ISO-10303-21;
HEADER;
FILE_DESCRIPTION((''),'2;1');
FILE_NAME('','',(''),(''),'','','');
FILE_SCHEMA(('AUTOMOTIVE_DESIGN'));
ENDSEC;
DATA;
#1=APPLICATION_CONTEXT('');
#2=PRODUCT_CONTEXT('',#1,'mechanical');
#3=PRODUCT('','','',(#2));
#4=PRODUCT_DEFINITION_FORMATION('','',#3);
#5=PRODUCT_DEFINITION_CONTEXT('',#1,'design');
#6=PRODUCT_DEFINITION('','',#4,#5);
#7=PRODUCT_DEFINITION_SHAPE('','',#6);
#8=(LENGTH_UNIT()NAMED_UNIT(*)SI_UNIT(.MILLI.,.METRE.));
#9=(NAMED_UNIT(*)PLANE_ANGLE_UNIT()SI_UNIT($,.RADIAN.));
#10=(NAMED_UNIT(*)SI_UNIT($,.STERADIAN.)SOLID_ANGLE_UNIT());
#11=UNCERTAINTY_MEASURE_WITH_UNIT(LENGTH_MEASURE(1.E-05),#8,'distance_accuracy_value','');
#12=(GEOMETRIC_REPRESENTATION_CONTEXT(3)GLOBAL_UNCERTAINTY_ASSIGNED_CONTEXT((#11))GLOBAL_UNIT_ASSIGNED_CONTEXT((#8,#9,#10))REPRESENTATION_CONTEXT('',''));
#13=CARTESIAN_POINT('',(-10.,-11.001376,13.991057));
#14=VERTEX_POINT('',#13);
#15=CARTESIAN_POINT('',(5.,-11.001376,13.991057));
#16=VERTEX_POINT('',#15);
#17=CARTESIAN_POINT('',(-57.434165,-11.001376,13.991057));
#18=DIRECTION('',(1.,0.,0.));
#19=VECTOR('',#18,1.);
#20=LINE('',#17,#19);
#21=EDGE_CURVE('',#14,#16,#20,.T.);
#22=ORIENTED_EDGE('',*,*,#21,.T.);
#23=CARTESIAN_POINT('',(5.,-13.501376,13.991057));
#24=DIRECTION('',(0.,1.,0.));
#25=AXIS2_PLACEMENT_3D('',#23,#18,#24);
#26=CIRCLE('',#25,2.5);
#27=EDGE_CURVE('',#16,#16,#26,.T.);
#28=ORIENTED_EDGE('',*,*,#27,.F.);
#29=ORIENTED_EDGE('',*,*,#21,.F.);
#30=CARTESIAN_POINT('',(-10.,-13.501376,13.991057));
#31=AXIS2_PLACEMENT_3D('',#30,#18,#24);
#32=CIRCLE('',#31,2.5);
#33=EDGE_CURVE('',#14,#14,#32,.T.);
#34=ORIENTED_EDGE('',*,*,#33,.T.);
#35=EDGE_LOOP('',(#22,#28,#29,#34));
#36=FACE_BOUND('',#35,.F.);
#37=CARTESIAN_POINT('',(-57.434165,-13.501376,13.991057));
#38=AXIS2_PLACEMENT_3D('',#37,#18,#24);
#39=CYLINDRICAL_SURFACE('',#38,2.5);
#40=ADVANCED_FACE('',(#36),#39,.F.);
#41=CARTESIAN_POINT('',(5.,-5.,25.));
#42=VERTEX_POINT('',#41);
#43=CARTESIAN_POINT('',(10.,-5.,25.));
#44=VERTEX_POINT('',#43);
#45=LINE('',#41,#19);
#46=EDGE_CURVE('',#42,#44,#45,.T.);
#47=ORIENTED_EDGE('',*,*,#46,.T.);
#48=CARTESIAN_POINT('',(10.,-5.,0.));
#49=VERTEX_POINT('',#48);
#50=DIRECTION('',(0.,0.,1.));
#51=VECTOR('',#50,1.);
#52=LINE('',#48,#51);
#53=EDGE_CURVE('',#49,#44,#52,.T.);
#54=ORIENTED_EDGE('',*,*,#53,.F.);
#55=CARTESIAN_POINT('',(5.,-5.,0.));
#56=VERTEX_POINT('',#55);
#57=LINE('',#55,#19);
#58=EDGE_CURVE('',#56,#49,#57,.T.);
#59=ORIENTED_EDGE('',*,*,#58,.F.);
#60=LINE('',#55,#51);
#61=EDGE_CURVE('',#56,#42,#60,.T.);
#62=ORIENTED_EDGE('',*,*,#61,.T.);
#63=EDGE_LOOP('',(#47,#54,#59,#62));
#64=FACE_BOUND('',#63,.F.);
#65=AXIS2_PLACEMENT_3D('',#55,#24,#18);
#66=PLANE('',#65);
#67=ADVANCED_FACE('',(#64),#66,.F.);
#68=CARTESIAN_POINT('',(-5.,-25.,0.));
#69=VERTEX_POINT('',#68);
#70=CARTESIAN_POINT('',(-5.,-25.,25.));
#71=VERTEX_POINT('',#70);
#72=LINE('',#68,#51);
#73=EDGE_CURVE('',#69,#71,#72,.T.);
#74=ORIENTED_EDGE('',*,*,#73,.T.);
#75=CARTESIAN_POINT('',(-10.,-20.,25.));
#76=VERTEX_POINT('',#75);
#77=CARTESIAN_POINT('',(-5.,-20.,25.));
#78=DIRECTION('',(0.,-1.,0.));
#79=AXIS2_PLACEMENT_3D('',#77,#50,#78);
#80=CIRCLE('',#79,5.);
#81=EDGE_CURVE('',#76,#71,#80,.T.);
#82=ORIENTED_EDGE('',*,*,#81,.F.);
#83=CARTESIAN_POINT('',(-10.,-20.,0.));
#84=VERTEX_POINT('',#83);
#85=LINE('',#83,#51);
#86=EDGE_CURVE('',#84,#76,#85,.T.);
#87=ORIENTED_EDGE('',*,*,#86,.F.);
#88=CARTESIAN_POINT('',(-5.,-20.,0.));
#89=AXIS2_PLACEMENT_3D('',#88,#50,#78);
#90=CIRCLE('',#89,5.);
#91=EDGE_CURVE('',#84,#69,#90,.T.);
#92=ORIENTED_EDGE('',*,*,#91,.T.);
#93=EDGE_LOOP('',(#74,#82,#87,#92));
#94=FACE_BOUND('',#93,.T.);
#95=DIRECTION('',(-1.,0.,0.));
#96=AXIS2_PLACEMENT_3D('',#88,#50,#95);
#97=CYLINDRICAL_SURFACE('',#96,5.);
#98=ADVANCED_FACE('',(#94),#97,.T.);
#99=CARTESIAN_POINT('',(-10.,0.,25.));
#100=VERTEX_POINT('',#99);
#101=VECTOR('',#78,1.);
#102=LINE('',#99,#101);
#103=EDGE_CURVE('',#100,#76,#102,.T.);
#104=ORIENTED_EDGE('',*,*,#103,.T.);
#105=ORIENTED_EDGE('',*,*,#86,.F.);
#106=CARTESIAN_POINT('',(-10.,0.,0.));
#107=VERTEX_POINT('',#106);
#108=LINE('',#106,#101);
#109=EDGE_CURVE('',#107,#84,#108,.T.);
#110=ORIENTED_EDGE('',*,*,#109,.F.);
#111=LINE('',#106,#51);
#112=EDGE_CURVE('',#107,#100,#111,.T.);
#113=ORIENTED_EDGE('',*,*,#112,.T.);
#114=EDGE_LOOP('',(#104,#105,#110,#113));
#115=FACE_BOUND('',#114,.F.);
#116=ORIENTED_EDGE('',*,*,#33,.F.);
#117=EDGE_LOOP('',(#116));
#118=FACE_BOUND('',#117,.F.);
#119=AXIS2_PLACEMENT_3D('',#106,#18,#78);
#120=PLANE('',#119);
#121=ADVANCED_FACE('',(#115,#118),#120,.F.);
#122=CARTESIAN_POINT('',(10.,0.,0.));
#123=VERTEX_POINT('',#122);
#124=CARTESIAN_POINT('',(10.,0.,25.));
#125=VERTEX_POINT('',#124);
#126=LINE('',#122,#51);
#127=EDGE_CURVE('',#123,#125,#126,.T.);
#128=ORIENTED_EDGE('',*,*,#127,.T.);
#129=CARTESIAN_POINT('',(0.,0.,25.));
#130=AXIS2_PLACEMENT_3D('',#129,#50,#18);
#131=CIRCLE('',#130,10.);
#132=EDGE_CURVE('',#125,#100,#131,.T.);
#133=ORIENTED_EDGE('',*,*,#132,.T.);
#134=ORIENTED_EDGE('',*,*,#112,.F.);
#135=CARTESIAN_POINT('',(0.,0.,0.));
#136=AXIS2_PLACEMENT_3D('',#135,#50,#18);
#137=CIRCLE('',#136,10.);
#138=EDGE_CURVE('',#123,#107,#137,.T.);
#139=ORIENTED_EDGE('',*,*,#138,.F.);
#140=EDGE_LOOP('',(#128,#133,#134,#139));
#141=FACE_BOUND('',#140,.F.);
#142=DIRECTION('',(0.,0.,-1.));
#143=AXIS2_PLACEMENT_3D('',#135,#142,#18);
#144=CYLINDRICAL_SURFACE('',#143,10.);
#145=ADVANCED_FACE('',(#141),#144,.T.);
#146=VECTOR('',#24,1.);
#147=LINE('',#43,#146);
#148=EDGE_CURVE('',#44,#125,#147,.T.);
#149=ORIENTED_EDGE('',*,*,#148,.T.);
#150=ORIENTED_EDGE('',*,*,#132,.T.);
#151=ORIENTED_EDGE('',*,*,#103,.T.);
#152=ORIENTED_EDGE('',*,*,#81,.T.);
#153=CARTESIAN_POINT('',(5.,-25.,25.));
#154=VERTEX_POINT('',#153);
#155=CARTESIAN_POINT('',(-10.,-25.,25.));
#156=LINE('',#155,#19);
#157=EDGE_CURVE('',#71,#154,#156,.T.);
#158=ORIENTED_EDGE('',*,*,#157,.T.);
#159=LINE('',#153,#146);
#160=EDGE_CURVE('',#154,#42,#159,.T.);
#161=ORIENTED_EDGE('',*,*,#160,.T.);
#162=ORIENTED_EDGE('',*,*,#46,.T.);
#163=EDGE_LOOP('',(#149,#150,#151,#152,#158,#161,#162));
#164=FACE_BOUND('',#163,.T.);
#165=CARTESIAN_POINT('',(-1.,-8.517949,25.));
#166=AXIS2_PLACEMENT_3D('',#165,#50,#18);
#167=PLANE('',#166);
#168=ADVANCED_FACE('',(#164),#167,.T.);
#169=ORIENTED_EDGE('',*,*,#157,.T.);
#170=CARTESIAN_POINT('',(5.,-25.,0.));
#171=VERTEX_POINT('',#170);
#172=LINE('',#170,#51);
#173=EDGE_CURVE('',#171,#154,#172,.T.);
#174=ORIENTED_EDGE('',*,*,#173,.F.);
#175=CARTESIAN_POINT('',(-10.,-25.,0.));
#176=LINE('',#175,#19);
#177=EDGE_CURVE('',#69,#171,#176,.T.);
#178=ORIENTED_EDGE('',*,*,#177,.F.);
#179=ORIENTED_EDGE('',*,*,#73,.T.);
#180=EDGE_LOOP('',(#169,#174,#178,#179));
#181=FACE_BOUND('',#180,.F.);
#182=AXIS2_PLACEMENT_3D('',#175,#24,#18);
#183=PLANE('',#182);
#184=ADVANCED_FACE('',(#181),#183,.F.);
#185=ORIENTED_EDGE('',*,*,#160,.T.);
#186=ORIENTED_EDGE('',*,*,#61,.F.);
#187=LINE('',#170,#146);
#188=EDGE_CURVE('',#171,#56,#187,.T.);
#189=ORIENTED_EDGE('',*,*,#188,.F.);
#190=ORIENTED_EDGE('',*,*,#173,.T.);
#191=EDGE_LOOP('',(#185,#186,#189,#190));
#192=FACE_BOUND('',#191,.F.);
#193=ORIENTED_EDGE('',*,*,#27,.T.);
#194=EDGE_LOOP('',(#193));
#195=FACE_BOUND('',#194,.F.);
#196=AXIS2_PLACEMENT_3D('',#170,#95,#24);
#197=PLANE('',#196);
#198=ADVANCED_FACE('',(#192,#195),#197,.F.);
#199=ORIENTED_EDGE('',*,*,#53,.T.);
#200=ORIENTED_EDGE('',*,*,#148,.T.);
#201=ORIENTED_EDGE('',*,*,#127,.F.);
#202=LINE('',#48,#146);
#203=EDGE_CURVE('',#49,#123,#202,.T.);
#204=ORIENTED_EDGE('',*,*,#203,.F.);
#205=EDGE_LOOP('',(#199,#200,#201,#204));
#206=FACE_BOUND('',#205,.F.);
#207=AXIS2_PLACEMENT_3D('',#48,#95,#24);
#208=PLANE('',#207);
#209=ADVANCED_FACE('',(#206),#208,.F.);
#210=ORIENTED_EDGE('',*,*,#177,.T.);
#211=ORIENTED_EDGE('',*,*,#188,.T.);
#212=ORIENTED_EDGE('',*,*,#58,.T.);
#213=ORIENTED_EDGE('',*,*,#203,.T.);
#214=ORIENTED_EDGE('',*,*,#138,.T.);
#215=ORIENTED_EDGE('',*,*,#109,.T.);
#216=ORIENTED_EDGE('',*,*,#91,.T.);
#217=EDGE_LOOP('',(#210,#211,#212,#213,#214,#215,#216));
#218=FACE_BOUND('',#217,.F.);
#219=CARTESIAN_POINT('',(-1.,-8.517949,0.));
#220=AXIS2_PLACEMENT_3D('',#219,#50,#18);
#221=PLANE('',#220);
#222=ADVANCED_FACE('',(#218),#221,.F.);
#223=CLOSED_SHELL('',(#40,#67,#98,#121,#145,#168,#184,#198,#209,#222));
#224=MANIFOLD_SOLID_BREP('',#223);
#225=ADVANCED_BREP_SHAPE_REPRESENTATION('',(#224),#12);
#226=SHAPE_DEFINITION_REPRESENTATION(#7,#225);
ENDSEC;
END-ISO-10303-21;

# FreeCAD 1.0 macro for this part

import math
import FreeCAD as App
import Part
import Sketcher


def edges_at(feature, points):
    """Names of the edges that pass closest to the given points."""
    edges = feature.Shape.Edges
    near = lambda p: min(range(len(edges)), key=lambda i: edges[i].distToShape(Part.Vertex(*p))[0])
    return sorted({f"Edge{near(p) + 1}" for p in points})

doc = App.newDocument("Part")
body = doc.addObject("PartDesign::Body", "Body")

# Sketch on XY plane
sketch1 = body.newObject("Sketcher::SketchObject", "Sketch")
sketch1.AttachmentSupport = (doc.getObject("XY_Plane"), [""])
sketch1.MapMode = "FlatFace"
sketch1.addGeometry([
    Part.LineSegment(App.Vector(10, -5, 0), App.Vector(10, 0, 0)),  # 0
    Part.ArcOfCircle(Part.Circle(App.Vector(0, 0, 0), App.Vector(0, 0, 1), 10), math.radians(0), math.radians(180)),  # 1
    Part.LineSegment(App.Vector(-10, 0, 0), App.Vector(-10, -25, 0)),  # 2
    Part.LineSegment(App.Vector(-10, -25, 0), App.Vector(5, -25, 0)),  # 3
    Part.LineSegment(App.Vector(5, -25, 0), App.Vector(5, -5, 0)),  # 4
    Part.LineSegment(App.Vector(5, -5, 0), App.Vector(10, -5, 0)),  # 5
], False)
sketch1.addConstraint([
    Sketcher.Constraint("Tangent", 0, 2, 1, 1),
    Sketcher.Constraint("Tangent", 1, 2, 2, 1),
    Sketcher.Constraint("Coincident", 2, 2, 3, 1),
    Sketcher.Constraint("Coincident", 3, 2, 4, 1),
    Sketcher.Constraint("Coincident", 4, 2, 5, 1),
    Sketcher.Constraint("Coincident", 5, 2, 0, 1),
    Sketcher.Constraint("Vertical", 0),
    Sketcher.Constraint("Vertical", 2),
    Sketcher.Constraint("Horizontal", 3),
    Sketcher.Constraint("Vertical", 4),
    Sketcher.Constraint("Horizontal", 5),
    Sketcher.Constraint("Coincident", 1, 3, -1, 1),
    Sketcher.Constraint("Equal", 5, 0),
    Sketcher.Constraint("Radius", 1, 10.0),
    Sketcher.Constraint("DistanceX", 3, 1, 3, 2, 15.0),
    Sketcher.Constraint("DistanceY", 2, 2, 2, 1, 25.0),
])
pad1 = body.newObject("PartDesign::Pad", "Pad")
pad1.Profile = sketch1
pad1.Length = 25

# Sketch on YZ plane
sketch2 = body.newObject("Sketcher::SketchObject", "Sketch001")
sketch2.AttachmentSupport = (doc.getObject("YZ_Plane"), [""])
sketch2.MapMode = "FlatFace"
sketch2.AttachmentOffset = App.Placement(App.Vector(0, 0, -10), App.Rotation())
sketch2.addGeometry(Part.Circle(App.Vector(-13.5, 14, 0), App.Vector(0, 0, 1), 2.5), False)
sketch2.addConstraint([
    Sketcher.Constraint("Diameter", 0, 5.0),
    Sketcher.Constraint("DistanceX", 0, 3, -1, 1, 13.501376),
    Sketcher.Constraint("DistanceY", -1, 1, 0, 3, 13.991057),
])
doc.recompute()
hole = body.newObject("PartDesign::Hole", "Hole")
hole.Profile = sketch2
hole.ThreadType = "None"
hole.Diameter = 5
hole.DepthType = "ThroughAll"
hole.Reversed = True
doc.recompute()

fillet = body.newObject("PartDesign::Fillet", "Fillet")
fillet.Base = (hole, edges_at(hole, [(-10, -25, 12.5)]))
fillet.Radius = 5

doc.recompute()
